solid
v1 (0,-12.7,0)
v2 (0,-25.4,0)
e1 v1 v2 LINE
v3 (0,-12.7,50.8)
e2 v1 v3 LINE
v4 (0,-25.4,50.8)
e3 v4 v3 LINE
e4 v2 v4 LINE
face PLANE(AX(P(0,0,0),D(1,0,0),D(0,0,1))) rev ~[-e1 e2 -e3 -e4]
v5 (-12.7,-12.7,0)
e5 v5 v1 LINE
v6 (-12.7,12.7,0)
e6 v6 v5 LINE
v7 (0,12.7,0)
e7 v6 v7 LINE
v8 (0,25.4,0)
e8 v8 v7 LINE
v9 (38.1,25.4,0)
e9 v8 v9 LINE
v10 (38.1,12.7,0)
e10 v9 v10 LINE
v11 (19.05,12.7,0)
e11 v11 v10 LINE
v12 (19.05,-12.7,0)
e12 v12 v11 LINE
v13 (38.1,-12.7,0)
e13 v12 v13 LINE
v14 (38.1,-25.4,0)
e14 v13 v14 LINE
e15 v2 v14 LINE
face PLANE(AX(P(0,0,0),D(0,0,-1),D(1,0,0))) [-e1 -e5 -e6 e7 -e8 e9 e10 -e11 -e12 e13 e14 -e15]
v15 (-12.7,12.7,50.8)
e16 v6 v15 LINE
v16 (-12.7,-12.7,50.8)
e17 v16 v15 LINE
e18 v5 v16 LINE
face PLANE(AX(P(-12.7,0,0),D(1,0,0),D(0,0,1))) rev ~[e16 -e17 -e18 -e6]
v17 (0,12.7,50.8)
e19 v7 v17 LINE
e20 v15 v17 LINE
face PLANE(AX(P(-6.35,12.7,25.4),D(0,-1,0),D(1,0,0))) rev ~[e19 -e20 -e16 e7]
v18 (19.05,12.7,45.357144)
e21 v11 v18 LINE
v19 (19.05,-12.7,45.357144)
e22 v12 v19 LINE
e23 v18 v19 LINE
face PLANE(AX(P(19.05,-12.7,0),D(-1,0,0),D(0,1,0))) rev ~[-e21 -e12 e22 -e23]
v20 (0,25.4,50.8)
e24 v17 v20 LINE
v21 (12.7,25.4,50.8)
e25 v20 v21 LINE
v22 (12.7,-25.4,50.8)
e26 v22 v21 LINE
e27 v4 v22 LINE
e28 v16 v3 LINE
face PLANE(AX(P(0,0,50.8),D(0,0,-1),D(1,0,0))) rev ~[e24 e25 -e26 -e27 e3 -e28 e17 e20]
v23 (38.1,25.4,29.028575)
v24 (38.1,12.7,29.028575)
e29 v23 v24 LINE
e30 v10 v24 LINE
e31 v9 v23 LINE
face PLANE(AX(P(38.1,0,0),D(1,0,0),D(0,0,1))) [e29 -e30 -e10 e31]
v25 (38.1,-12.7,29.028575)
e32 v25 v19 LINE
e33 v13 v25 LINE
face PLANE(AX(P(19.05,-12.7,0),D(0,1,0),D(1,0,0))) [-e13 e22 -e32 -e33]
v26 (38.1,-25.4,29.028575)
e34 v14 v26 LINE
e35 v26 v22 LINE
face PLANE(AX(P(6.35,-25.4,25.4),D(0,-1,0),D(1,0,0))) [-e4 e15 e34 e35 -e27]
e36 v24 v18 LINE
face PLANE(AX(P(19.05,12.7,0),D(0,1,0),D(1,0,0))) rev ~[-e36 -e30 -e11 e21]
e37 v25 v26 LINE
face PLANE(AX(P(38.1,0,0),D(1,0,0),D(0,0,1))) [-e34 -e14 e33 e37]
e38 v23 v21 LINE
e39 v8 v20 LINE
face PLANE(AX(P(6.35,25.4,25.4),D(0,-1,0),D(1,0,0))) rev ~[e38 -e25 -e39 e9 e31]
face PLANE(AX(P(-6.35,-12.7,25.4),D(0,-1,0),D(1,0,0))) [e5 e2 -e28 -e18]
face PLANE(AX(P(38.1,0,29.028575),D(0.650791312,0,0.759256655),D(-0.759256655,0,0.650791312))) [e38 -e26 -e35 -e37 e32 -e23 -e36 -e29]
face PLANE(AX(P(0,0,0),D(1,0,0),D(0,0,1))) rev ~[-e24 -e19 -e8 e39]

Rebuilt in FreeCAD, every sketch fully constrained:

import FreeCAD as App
import Part
import Sketcher
from FreeCAD import Vector
Q = App.Units.Quantity

doc = App.newDocument("Part")
body = doc.addObject("PartDesign::Body", "Body")

# Sketch on XZ plane
sketch1 = body.newObject("Sketcher::SketchObject", "Sketch")
sketch1.AttachmentSupport = (doc.getObject("XZ_Plane"), [""])
sketch1.MapMode = "FlatFace"
sketch1.addGeometry([
    Part.LineSegment(Vector(0, 51, 0), Vector(0, 0, 0)),  # 0
    Part.LineSegment(Vector(0, 0, 0), Vector(38, 0, 0)),  # 1
    Part.LineSegment(Vector(38, 0, 0), Vector(38, 29, 0)),  # 2
    Part.LineSegment(Vector(38, 29, 0), Vector(13, 51, 0)),  # 3
    Part.LineSegment(Vector(13, 51, 0), Vector(0, 51, 0)),  # 4
], False)
sketch1.addConstraint([
    Sketcher.Constraint("Coincident", 0, 2, 1, 1),
    Sketcher.Constraint("Coincident", 1, 2, 2, 1),
    Sketcher.Constraint("Coincident", 2, 2, 3, 1),
    Sketcher.Constraint("Coincident", 3, 2, 4, 1),
    Sketcher.Constraint("Coincident", 4, 2, 0, 1),
    Sketcher.Constraint("Vertical", 0),
    Sketcher.Constraint("Horizontal", 1),
    Sketcher.Constraint("Vertical", 2),
    Sketcher.Constraint("Horizontal", 4),
    Sketcher.Constraint("Coincident", 0, 2, -1, 1),
    Sketcher.Constraint("DistanceY", 0, 2, 0, 1, Q("2 in")),
    Sketcher.Constraint("DistanceX", 1, 1, 1, 2, Q("1.5 in")),
    Sketcher.Constraint("DistanceX", 4, 2, 4, 1, Q("0.5 in")),
    Sketcher.Constraint("DistanceY", 2, 1, 2, 2, 29.028575),
])
pad1 = body.newObject("PartDesign::Pad", "Pad")
pad1.Profile = sketch1
pad1.Length = Q("2 in")
pad1.Midplane = True

# Sketch on XZ plane
sketch2 = body.newObject("Sketcher::SketchObject", "Sketch001")
sketch2.AttachmentSupport = (doc.getObject("XZ_Plane"), [""])
sketch2.MapMode = "FlatFace"
sketch2.addGeometry([
    Part.LineSegment(Vector(-13, 51, 0), Vector(-13, 0, 0)),
    Part.LineSegment(Vector(-13, 0, 0), Vector(0, 0, 0)),
    Part.LineSegment(Vector(0, 0, 0), Vector(0, 51, 0)),
    Part.LineSegment(Vector(0, 51, 0), Vector(-13, 51, 0)),
], False)
sketch2.addConstraint([
    Sketcher.Constraint("Coincident", 0, 2, 1, 1),
    Sketcher.Constraint("Coincident", 1, 2, 2, 1),
    Sketcher.Constraint("Coincident", 2, 2, 3, 1),
    Sketcher.Constraint("Coincident", 3, 2, 0, 1),
    Sketcher.Constraint("Vertical", 0),
    Sketcher.Constraint("Horizontal", 1),
    Sketcher.Constraint("Vertical", 2),
    Sketcher.Constraint("Horizontal", 3),
    Sketcher.Constraint("Coincident", 1, 2, -1, 1),
    Sketcher.Constraint("DistanceY", 0, 2, 0, 1, Q("2 in")),
    Sketcher.Constraint("DistanceX", 1, 1, 1, 2, Q("0.5 in")),
])
pad2 = body.newObject("PartDesign::Pad", "Pad001")
pad2.Profile = sketch2
pad2.Length = Q("1 in")
pad2.Midplane = True

# Sketch on XY plane
sketch3 = body.newObject("Sketcher::SketchObject", "Sketch002")
sketch3.AttachmentSupport = (doc.getObject("XY_Plane"), [""])
sketch3.MapMode = "FlatFace"
sketch3.addGeometry([
    Part.LineSegment(Vector(19, 13, 0), Vector(19, -13, 0)),
    Part.LineSegment(Vector(19, -13, 0), Vector(38, -13, 0)),
    Part.LineSegment(Vector(38, -13, 0), Vector(38, 13, 0)),
    Part.LineSegment(Vector(38, 13, 0), Vector(19, 13, 0)),
], False)
sketch3.addConstraint([
    Sketcher.Constraint("Coincident", 0, 2, 1, 1),
    Sketcher.Constraint("Coincident", 1, 2, 2, 1),
    Sketcher.Constraint("Coincident", 2, 2, 3, 1),
    Sketcher.Constraint("Coincident", 3, 2, 0, 1),
    Sketcher.Constraint("Vertical", 0),
    Sketcher.Constraint("Horizontal", 1),
    Sketcher.Constraint("Vertical", 2),
    Sketcher.Constraint("Horizontal", 3),
    Sketcher.Constraint("DistanceY", 0, 2, 0, 1, Q("1 in")),
    Sketcher.Constraint("DistanceX", 1, 1, 1, 2, Q("0.75 in")),
    Sketcher.Constraint("DistanceY", 0, 2, -1, 1, Q("0.5 in")),
    Sketcher.Constraint("DistanceX", -1, 1, 1, 2, Q("1.5 in")),
])
pocket1 = body.newObject("PartDesign::Pocket", "Pocket")
pocket1.Profile = sketch3
pocket1.Length = Q("2 in")
pocket1.Reversed = True

doc.recompute()
